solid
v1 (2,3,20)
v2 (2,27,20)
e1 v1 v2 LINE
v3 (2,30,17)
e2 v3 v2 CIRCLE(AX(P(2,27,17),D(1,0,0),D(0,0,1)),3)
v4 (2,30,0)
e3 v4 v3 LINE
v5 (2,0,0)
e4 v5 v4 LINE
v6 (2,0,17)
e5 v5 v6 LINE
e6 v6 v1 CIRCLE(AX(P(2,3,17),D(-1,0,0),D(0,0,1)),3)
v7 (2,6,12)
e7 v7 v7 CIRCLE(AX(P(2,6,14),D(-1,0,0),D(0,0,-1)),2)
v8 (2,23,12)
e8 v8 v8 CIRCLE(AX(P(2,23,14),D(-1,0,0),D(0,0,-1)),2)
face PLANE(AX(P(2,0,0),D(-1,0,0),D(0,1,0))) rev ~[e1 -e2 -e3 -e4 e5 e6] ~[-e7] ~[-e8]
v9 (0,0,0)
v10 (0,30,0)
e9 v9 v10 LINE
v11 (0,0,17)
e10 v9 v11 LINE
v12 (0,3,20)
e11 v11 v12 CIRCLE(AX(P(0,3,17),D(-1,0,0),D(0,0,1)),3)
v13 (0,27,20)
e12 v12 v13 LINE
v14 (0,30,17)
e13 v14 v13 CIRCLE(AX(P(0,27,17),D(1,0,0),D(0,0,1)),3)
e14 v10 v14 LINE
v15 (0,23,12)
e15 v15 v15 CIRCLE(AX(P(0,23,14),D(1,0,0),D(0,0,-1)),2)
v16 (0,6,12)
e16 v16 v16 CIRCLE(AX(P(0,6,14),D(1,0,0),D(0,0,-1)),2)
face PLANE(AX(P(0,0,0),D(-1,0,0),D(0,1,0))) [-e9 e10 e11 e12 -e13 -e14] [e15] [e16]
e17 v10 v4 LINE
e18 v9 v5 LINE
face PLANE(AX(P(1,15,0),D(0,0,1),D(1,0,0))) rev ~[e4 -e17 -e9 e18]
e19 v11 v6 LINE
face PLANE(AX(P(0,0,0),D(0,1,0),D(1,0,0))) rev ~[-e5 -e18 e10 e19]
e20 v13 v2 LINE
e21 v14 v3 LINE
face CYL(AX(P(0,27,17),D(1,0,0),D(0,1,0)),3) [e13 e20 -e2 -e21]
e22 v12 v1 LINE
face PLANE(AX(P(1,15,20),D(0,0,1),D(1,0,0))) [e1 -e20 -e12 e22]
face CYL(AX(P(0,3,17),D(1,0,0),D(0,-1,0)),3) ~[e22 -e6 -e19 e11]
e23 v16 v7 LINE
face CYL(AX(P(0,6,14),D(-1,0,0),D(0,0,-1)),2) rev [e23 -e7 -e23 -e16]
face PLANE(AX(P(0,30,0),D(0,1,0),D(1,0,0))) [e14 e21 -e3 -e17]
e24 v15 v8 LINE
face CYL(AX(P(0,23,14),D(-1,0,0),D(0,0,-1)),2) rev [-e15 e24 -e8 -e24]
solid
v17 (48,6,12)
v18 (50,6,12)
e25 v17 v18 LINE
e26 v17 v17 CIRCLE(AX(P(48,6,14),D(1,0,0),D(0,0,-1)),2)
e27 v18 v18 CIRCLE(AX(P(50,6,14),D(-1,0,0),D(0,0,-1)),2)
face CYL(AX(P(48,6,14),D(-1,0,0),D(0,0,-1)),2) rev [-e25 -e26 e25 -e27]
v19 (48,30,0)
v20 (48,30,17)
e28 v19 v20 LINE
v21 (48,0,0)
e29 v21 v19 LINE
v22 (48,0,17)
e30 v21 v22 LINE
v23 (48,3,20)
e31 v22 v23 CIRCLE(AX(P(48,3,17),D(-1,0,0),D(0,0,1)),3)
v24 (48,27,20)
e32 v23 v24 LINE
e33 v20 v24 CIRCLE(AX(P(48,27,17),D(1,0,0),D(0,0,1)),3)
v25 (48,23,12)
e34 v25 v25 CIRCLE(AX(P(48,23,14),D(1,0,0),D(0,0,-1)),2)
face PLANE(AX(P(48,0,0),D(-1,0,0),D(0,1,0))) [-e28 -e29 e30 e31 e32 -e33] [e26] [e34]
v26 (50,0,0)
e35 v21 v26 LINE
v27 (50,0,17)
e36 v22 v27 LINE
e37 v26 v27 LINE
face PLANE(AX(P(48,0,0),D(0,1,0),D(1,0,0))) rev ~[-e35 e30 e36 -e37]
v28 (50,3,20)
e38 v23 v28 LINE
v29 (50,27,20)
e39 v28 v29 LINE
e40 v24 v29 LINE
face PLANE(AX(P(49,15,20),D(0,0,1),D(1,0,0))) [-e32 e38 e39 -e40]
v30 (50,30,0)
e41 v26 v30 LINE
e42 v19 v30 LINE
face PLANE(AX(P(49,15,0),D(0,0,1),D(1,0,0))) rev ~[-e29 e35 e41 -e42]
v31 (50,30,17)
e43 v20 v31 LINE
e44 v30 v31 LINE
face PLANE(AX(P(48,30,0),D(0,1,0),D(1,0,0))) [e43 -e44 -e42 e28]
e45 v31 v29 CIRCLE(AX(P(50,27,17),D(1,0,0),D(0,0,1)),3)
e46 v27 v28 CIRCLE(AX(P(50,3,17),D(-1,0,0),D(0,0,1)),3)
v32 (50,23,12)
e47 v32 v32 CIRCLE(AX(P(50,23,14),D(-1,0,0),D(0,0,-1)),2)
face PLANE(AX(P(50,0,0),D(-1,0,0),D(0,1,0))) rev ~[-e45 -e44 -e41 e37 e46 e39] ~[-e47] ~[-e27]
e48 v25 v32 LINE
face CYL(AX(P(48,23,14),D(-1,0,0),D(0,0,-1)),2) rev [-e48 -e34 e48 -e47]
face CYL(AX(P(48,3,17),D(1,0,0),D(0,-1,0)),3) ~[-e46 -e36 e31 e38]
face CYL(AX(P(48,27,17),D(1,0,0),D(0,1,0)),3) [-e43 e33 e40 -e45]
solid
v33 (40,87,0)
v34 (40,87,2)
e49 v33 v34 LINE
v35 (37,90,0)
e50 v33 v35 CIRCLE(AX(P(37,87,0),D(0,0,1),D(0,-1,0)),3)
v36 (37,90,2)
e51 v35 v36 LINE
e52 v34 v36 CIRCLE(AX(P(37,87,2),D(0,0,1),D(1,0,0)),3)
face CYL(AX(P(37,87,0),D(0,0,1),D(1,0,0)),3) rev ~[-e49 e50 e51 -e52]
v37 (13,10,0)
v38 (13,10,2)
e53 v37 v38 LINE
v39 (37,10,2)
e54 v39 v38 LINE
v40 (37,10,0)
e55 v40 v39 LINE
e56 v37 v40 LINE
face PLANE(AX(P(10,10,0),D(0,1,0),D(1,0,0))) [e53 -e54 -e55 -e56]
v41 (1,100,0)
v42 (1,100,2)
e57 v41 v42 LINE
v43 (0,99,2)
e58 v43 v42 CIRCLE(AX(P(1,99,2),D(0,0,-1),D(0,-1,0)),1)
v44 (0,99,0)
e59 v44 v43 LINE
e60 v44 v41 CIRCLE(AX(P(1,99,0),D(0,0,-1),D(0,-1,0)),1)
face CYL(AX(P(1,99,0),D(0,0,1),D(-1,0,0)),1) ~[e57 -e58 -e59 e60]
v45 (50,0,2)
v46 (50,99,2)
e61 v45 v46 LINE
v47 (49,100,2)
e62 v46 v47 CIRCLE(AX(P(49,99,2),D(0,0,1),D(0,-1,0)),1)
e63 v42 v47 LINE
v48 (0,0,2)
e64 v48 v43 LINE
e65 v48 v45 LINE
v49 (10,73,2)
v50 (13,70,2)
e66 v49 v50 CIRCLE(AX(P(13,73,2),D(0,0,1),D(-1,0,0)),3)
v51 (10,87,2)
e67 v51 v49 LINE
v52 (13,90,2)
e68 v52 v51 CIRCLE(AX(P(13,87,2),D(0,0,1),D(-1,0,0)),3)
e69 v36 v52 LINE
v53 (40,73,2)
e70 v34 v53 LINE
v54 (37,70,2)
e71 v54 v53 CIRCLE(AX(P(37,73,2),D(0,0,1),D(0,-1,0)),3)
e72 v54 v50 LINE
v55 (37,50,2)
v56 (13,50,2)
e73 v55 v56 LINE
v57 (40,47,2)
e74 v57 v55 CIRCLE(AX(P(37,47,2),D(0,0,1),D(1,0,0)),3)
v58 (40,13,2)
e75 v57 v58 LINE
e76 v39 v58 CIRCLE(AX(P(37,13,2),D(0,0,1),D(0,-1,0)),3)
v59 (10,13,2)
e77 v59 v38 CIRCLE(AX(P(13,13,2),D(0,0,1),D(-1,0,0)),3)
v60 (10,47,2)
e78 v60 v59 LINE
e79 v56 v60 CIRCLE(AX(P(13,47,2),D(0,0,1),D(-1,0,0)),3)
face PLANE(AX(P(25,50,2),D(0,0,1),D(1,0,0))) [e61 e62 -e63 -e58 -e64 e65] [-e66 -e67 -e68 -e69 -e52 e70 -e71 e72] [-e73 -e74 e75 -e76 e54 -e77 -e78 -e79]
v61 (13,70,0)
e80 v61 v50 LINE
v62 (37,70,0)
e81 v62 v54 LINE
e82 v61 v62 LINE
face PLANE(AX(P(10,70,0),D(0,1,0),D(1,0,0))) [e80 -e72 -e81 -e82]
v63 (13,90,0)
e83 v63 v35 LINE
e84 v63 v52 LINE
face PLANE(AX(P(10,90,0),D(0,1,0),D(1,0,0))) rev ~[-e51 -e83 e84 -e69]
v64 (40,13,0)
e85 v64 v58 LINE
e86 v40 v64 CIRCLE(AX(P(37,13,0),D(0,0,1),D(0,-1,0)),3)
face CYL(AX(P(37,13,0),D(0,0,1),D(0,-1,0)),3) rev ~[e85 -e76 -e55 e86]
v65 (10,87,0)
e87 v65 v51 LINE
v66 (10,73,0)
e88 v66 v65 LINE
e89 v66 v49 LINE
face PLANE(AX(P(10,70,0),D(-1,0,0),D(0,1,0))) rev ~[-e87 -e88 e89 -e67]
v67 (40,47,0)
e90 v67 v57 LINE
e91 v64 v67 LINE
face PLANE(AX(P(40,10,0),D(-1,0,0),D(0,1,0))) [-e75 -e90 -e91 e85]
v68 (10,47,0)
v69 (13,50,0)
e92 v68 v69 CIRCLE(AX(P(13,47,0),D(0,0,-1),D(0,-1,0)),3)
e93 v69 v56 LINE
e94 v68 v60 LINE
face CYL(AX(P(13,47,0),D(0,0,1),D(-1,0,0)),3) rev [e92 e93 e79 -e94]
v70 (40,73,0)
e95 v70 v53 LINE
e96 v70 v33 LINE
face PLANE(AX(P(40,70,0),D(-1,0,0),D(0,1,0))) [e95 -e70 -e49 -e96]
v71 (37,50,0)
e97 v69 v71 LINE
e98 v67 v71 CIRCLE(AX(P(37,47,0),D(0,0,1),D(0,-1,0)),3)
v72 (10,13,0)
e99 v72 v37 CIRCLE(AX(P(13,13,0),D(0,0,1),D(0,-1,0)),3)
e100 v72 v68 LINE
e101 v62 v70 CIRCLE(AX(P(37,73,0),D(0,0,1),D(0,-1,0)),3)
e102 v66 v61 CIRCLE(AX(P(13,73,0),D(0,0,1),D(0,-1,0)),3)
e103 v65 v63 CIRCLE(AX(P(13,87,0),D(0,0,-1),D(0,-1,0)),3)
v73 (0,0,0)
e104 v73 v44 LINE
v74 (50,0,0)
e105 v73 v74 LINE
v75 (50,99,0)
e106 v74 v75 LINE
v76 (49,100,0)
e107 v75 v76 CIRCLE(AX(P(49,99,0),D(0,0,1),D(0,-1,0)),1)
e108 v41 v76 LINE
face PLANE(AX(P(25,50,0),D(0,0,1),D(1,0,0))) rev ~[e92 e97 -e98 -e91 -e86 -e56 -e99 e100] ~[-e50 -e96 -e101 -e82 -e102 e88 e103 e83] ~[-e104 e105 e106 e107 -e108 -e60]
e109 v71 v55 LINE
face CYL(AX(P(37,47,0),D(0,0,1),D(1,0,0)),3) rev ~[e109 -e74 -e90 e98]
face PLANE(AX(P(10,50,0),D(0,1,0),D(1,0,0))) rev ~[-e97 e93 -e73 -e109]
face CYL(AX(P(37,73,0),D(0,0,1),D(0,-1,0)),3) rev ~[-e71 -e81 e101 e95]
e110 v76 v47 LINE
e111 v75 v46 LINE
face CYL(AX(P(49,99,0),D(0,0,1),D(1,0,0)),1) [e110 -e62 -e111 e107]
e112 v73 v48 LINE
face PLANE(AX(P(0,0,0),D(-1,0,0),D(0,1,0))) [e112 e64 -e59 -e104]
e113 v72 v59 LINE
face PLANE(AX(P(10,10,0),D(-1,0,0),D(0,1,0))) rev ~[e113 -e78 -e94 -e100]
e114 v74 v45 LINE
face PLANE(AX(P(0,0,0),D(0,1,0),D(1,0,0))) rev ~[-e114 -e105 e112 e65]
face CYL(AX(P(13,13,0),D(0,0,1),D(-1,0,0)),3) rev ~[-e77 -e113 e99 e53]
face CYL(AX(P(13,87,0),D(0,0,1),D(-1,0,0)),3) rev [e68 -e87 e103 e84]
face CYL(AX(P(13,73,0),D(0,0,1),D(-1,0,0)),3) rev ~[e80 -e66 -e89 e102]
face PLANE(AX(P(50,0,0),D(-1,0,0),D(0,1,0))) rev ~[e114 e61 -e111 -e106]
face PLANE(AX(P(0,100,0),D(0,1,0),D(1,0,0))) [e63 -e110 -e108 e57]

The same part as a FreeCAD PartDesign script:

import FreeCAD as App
import Part
import Sketcher

V = App.Vector


def edges_at(feature, points):
    """Names of the edges that pass closest to the given points."""
    edges = feature.Shape.Edges
    near = lambda p: min(range(len(edges)), key=lambda i: edges[i].distToShape(Part.Vertex(*p))[0])
    return sorted({f"Edge{near(p) + 1}" for p in points})


def add_polygon(sketch, points):
    """Adds a closed chain of lines whose ends are joined by coincident constraints."""
    first, n = sketch.GeometryCount, len(points)
    for a, b in zip(points, points[1:] + points[:1]):
        sketch.addGeometry(Part.LineSegment(App.Vector(*a, 0), App.Vector(*b, 0)), False)
    for i in range(n):
        sketch.addConstraint(Sketcher.Constraint("Coincident", first + i, 2, first + (i + 1) % n, 1))

doc = App.newDocument("Part")
params = doc.addObject("Spreadsheet::Sheet", "Params")
for row, (alias, value) in enumerate([
    ("sketch1_width", "30 mm"),
    ("sketch1_height", "40 mm"),
    ("pad1_length", "3 mm"),
    ("fillet_radius", "3 mm"),
    ("sketch2_width", "30 mm"),
    ("sketch2_height", "20 mm"),
    ("pad2_length", "3 mm"),
    ("fillet2_radius", "3 mm"),
    ("sketch3_width", "50 mm"),
    ("sketch3_height", "100 mm"),
    ("pad3_length", "2 mm"),
    ("fillet3_radius", "1 mm"),
    ("sketch4_diameter", "4 mm"),
    ("pad4_length", "3 mm"),
    ("sketch5_diameter", "4 mm"),
    ("pad5_length", "3 mm"),
    ("sketch6_width", "2 mm"),
    ("sketch6_height", "30 mm"),
    ("pad6_length", "20 mm"),
    ("fillet4_radius", "3 mm"),
    ("sketch7_diameter", "4 mm"),
    ("pad7_length", "3 mm"),
    ("sketch8_diameter", "4 mm"),
    ("pad8_length", "3 mm"),
    ("sketch9_width", "2 mm"),
    ("sketch9_height", "30 mm"),
    ("pad9_length", "20 mm"),
    ("fillet5_radius", "3 mm"),
], start=1):
    params.set(f"A{row}", alias)
    params.set(f"B{row}", "=" + value)
    params.setAlias(f"B{row}", alias)

body = doc.addObject("PartDesign::Body", "Body")

sketch1 = body.newObject("Sketcher::SketchObject", "Sketch")
sketch1.AttachmentSupport = (doc.getObject("XY_Plane"), [""])
sketch1.MapMode = "FlatFace"
add_polygon(sketch1, [(0, 40), (0, 0), (30, 0), (30, 40)])
sketch1.addConstraint([
    Sketcher.Constraint("Vertical", 0),
    Sketcher.Constraint("Horizontal", 1),
    Sketcher.Constraint("Vertical", 2),
    Sketcher.Constraint("Horizontal", 3),
    Sketcher.Constraint("Coincident", 0, 2, -1, 1),
    Sketcher.Constraint("DistanceX", 1, 1, 1, 2, 30.0),
    Sketcher.Constraint("DistanceY", 0, 2, 0, 1, 40.0),
])
sketch1.setExpression("Constraints[9]", "Params.sketch1_width")
sketch1.setExpression("Constraints[10]", "Params.sketch1_height")
pad1 = body.newObject("PartDesign::Pad", "Pad")
pad1.Profile = sketch1
pad1.setExpression("Length", "Params.pad1_length")
doc.recompute()

fillet = body.newObject("PartDesign::Fillet", "Fillet")
fillet.Base = (pad1, edges_at(pad1, [
    (0, 0, 1.5),
    (0, 40, 1.5),
    (30, 0, 1.5),
    (30, 40, 1.5),
]))
fillet.setExpression("Radius", "Params.fillet_radius")
body2 = doc.addObject("PartDesign::Body", "Body001")
doc.recompute()

body.Placement = App.Placement(V(10, 10, 0), App.Rotation(V(0, 0, 1), 0))
boolean = body2.newObject("PartDesign::Boolean", "Boolean")
boolean.Type = "Fuse"
boolean.addObjects([body])
body3 = doc.addObject("PartDesign::Body", "Body002")

sketch2 = body3.newObject("Sketcher::SketchObject", "Sketch001")
sketch2.AttachmentSupport = (doc.getObject("XY_Plane002"), [""])
sketch2.MapMode = "FlatFace"
add_polygon(sketch2, [(0, 20), (0, 0), (30, 0), (30, 20)])
sketch2.addConstraint([
    Sketcher.Constraint("Vertical", 0),
    Sketcher.Constraint("Horizontal", 1),
    Sketcher.Constraint("Vertical", 2),
    Sketcher.Constraint("Horizontal", 3),
    Sketcher.Constraint("Coincident", 0, 2, -1, 1),
    Sketcher.Constraint("DistanceX", 1, 1, 1, 2, 30.0),
    Sketcher.Constraint("DistanceY", 0, 2, 0, 1, 20.0),
])
sketch2.setExpression("Constraints[9]", "Params.sketch2_width")
sketch2.setExpression("Constraints[10]", "Params.sketch2_height")
pad2 = body3.newObject("PartDesign::Pad", "Pad001")
pad2.Profile = sketch2
pad2.setExpression("Length", "Params.pad2_length")
doc.recompute()

fillet2 = body3.newObject("PartDesign::Fillet", "Fillet001")
fillet2.Base = (pad2, edges_at(pad2, [
    (0, 0, 1.5),
    (0, 20, 1.5),
    (30, 0, 1.5),
    (30, 20, 1.5),
]))
fillet2.setExpression("Radius", "Params.fillet2_radius")
body4 = doc.addObject("PartDesign::Body", "Body003")
doc.recompute()

body3.Placement = App.Placement(V(10, 70, 0), App.Rotation(V(0, 0, 1), 0))
boolean2 = body4.newObject("PartDesign::Boolean", "Boolean001")
boolean2.Type = "Fuse"
boolean2.addObjects([body3])
body5 = doc.addObject("PartDesign::Body", "Body004")

sketch3 = body5.newObject("Sketcher::SketchObject", "Sketch002")
sketch3.AttachmentSupport = (doc.getObject("XY_Plane004"), [""])
sketch3.MapMode = "FlatFace"
add_polygon(sketch3, [(0, 100), (0, 0), (50, 0), (50, 100)])
sketch3.addConstraint([
    Sketcher.Constraint("Vertical", 0),
    Sketcher.Constraint("Horizontal", 1),
    Sketcher.Constraint("Vertical", 2),
    Sketcher.Constraint("Horizontal", 3),
    Sketcher.Constraint("Coincident", 0, 2, -1, 1),
    Sketcher.Constraint("DistanceX", 1, 1, 1, 2, 50.0),
    Sketcher.Constraint("DistanceY", 0, 2, 0, 1, 100.0),
])
sketch3.setExpression("Constraints[9]", "Params.sketch3_width")
sketch3.setExpression("Constraints[10]", "Params.sketch3_height")
pad3 = body5.newObject("PartDesign::Pad", "Pad002")
pad3.Profile = sketch3
pad3.setExpression("Length", "Params.pad3_length")
doc.recompute()

fillet3 = body5.newObject("PartDesign::Fillet", "Fillet002")
fillet3.Base = (pad3, edges_at(pad3, [(0, 100, 1), (50, 100, 1)]))
fillet3.setExpression("Radius", "Params.fillet3_radius")
doc.recompute()

boolean3 = body5.newObject("PartDesign::Boolean", "Boolean002")
boolean3.Type = "Cut"
boolean3.addObjects([body4])
doc.recompute()

boolean4 = body5.newObject("PartDesign::Boolean", "Boolean003")
boolean4.Type = "Cut"
boolean4.addObjects([body2])
body6 = doc.addObject("PartDesign::Body", "Body005")

sketch4 = body6.newObject("Sketcher::SketchObject", "Sketch003")
sketch4.AttachmentSupport = (doc.getObject("YZ_Plane005"), [""])
sketch4.MapMode = "FlatFace"
sketch4.addGeometry(Part.Circle(V(23, 14, 0), V(0, 0, 1), 2), False)
sketch4.addConstraint([
    Sketcher.Constraint("Diameter", 0, 4.0),
    Sketcher.Constraint("DistanceX", -1, 1, 0, 3, 23.0),
    Sketcher.Constraint("DistanceY", -1, 1, 0, 3, 14.0),
])
sketch4.setExpression("Constraints[0]", "Params.sketch4_diameter")
pad4 = body6.newObject("PartDesign::Pad", "Pad003")
pad4.Profile = sketch4
pad4.setExpression("Length", "Params.pad4_length")
body7 = doc.addObject("PartDesign::Body", "Body006")
body7.AllowCompound = True

sketch5 = body7.newObject("Sketcher::SketchObject", "Sketch004")
sketch5.AttachmentSupport = (doc.getObject("YZ_Plane006"), [""])
sketch5.MapMode = "FlatFace"
sketch5.addGeometry(Part.Circle(V(6, 14, 0), V(0, 0, 1), 2), False)
sketch5.addConstraint([
    Sketcher.Constraint("Diameter", 0, 4.0),
    Sketcher.Constraint("DistanceX", -1, 1, 0, 3, 6.0),
    Sketcher.Constraint("DistanceY", -1, 1, 0, 3, 14.0),
])
sketch5.setExpression("Constraints[0]", "Params.sketch5_diameter")
pad5 = body7.newObject("PartDesign::Pad", "Pad004")
pad5.Profile = sketch5
pad5.setExpression("Length", "Params.pad5_length")
doc.recompute()

boolean5 = body7.newObject("PartDesign::Boolean", "Boolean004")
boolean5.Type = "Fuse"
boolean5.addObjects([body6])
body8 = doc.addObject("PartDesign::Body", "Body007")

sketch6 = body8.newObject("Sketcher::SketchObject", "Sketch005")
sketch6.AttachmentSupport = (doc.getObject("XY_Plane007"), [""])
sketch6.MapMode = "FlatFace"
add_polygon(sketch6, [(0, 30), (0, 0), (2, 0), (2, 30)])
sketch6.addConstraint([
    Sketcher.Constraint("Vertical", 0),
    Sketcher.Constraint("Horizontal", 1),
    Sketcher.Constraint("Vertical", 2),
    Sketcher.Constraint("Horizontal", 3),
    Sketcher.Constraint("Coincident", 0, 2, -1, 1),
    Sketcher.Constraint("DistanceX", 1, 1, 1, 2, 2.0),
    Sketcher.Constraint("DistanceY", 0, 2, 0, 1, 30.0),
])
sketch6.setExpression("Constraints[9]", "Params.sketch6_width")
sketch6.setExpression("Constraints[10]", "Params.sketch6_height")
pad6 = body8.newObject("PartDesign::Pad", "Pad005")
pad6.Profile = sketch6
pad6.setExpression("Length", "Params.pad6_length")
doc.recompute()

fillet4 = body8.newObject("PartDesign::Fillet", "Fillet003")
fillet4.Base = (pad6, edges_at(pad6, [(1, 0, 20), (1, 30, 20)]))
fillet4.setExpression("Radius", "Params.fillet4_radius")
doc.recompute()

boolean6 = body8.newObject("PartDesign::Boolean", "Boolean005")
boolean6.Type = "Cut"
boolean6.addObjects([body7])
body9 = doc.addObject("PartDesign::Body", "Body008")

sketch7 = body9.newObject("Sketcher::SketchObject", "Sketch006")
sketch7.AttachmentSupport = (doc.getObject("YZ_Plane008"), [""])
sketch7.MapMode = "FlatFace"
sketch7.addGeometry(Part.Circle(V(23, 14, 0), V(0, 0, 1), 2), False)
sketch7.addConstraint([
    Sketcher.Constraint("Diameter", 0, 4.0),
    Sketcher.Constraint("DistanceX", -1, 1, 0, 3, 23.0),
    Sketcher.Constraint("DistanceY", -1, 1, 0, 3, 14.0),
])
sketch7.setExpression("Constraints[0]", "Params.sketch7_diameter")
pad7 = body9.newObject("PartDesign::Pad", "Pad006")
pad7.Profile = sketch7
pad7.setExpression("Length", "Params.pad7_length")
body10 = doc.addObject("PartDesign::Body", "Body009")
body10.AllowCompound = True

sketch8 = body10.newObject("Sketcher::SketchObject", "Sketch007")
sketch8.AttachmentSupport = (doc.getObject("YZ_Plane009"), [""])
sketch8.MapMode = "FlatFace"
sketch8.addGeometry(Part.Circle(V(6, 14, 0), V(0, 0, 1), 2), False)
sketch8.addConstraint([
    Sketcher.Constraint("Diameter", 0, 4.0),
    Sketcher.Constraint("DistanceX", -1, 1, 0, 3, 6.0),
    Sketcher.Constraint("DistanceY", -1, 1, 0, 3, 14.0),
])
sketch8.setExpression("Constraints[0]", "Params.sketch8_diameter")
pad8 = body10.newObject("PartDesign::Pad", "Pad007")
pad8.Profile = sketch8
pad8.setExpression("Length", "Params.pad8_length")
doc.recompute()

boolean7 = body10.newObject("PartDesign::Boolean", "Boolean006")
boolean7.Type = "Fuse"
boolean7.addObjects([body9])
body11 = doc.addObject("PartDesign::Body", "Body010")

sketch9 = body11.newObject("Sketcher::SketchObject", "Sketch008")
sketch9.AttachmentSupport = (doc.getObject("XY_Plane010"), [""])
sketch9.MapMode = "FlatFace"
add_polygon(sketch9, [(0, 30), (0, 0), (2, 0), (2, 30)])
sketch9.addConstraint([
    Sketcher.Constraint("Vertical", 0),
    Sketcher.Constraint("Horizontal", 1),
    Sketcher.Constraint("Vertical", 2),
    Sketcher.Constraint("Horizontal", 3),
    Sketcher.Constraint("Coincident", 0, 2, -1, 1),
    Sketcher.Constraint("DistanceX", 1, 1, 1, 2, 2.0),
    Sketcher.Constraint("DistanceY", 0, 2, 0, 1, 30.0),
])
sketch9.setExpression("Constraints[9]", "Params.sketch9_width")
sketch9.setExpression("Constraints[10]", "Params.sketch9_height")
pad9 = body11.newObject("PartDesign::Pad", "Pad008")
pad9.Profile = sketch9
pad9.setExpression("Length", "Params.pad9_length")
doc.recompute()

fillet5 = body11.newObject("PartDesign::Fillet", "Fillet004")
fillet5.Base = (pad9, edges_at(pad9, [(1, 0, 20), (1, 30, 20)]))
fillet5.setExpression("Radius", "Params.fillet5_radius")
doc.recompute()

boolean8 = body11.newObject("PartDesign::Boolean", "Boolean007")
boolean8.Type = "Cut"
boolean8.addObjects([body10])
body12 = doc.addObject("PartDesign::Body", "Body011")
doc.recompute()

body11.Placement = App.Placement(V(48, 0, 0), App.Rotation(V(0, 0, 1), 0))
boolean9 = body12.newObject("PartDesign::Boolean", "Boolean008")
boolean9.Type = "Fuse"
boolean9.addObjects([body11])

doc.recompute()
